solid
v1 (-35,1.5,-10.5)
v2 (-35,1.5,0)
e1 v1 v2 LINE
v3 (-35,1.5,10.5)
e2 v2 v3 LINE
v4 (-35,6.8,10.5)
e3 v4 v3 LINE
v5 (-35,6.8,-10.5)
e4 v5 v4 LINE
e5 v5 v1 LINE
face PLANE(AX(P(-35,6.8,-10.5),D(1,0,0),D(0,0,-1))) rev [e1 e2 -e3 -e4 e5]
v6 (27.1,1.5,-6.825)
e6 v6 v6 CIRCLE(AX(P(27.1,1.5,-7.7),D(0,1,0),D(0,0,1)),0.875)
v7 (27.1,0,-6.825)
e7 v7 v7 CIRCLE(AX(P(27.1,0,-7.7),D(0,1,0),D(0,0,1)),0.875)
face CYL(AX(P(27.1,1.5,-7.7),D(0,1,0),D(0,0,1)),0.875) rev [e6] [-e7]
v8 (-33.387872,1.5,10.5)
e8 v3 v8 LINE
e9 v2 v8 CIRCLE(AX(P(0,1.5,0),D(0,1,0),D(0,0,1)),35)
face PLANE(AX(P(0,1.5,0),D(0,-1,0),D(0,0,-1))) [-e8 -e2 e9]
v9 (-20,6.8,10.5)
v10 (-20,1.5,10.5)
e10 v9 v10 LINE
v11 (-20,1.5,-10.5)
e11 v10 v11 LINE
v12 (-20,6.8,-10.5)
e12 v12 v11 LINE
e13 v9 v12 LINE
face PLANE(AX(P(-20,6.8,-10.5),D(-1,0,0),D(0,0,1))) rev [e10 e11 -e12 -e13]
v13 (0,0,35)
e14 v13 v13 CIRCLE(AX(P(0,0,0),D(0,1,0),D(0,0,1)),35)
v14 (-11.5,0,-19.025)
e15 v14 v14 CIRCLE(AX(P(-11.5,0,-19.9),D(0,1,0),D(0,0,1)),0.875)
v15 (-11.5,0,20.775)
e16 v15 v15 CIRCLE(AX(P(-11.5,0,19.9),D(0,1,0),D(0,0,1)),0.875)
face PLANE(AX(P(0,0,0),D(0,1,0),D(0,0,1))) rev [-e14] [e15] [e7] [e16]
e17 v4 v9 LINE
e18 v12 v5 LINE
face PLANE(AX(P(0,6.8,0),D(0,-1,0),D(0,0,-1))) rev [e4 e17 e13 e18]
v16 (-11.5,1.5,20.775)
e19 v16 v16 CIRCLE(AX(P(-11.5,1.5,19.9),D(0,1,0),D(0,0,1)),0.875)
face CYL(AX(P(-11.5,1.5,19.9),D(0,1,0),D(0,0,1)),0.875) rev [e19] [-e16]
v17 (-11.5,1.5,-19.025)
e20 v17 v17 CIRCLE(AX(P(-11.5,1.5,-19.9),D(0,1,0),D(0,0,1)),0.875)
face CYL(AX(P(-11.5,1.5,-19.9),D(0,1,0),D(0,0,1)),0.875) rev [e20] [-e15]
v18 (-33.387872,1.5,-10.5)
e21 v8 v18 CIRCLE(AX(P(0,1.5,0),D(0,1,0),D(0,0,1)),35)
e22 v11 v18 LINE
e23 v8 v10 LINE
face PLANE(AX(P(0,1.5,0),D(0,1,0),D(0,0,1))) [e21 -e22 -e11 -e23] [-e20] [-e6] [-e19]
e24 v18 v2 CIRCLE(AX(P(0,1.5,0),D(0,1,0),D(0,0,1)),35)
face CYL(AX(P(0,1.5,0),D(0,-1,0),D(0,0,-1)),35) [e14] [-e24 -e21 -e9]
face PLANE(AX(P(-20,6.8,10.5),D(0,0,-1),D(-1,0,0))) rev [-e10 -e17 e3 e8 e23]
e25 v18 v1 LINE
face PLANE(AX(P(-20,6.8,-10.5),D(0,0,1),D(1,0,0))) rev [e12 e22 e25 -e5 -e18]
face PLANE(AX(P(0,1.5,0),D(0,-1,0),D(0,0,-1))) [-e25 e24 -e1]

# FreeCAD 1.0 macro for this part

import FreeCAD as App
import Part
import Sketcher

V = App.Vector
Q = App.Units.Quantity


def add_polygon(sketch, points):
    """Adds a closed chain of lines whose ends are joined by coincident constraints."""
    first, n = sketch.GeometryCount, len(points)
    for a, b in zip(points, points[1:] + points[:1]):
        sketch.addGeometry(Part.LineSegment(App.Vector(*a, 0), App.Vector(*b, 0)), False)
    for i in range(n):
        sketch.addConstraint(Sketcher.Constraint("Coincident", first + i, 2, first + (i + 1) % n, 1))

doc = App.newDocument("Part")
body = doc.addObject("PartDesign::Body", "Body")

# Sketch on XZ plane
sketch1 = doc.addObject("Sketcher::SketchObject", "Sketch")
body.addObject(sketch1)
sketch1.AttachmentSupport = (doc.XZ_Plane, [""])
sketch1.MapMode = "FlatFace"
sketch1.addGeometry(Part.Circle(V(0, 0, 0), V(0, 0, 1), 35), False)
sketch1.addConstraint([
    Sketcher.Constraint("Coincident", 0, 3, -1, 1),
    Sketcher.Constraint("Diameter", 0, Q("70 mm")),
])
pad1 = doc.addObject("PartDesign::Pad", "Pad")
body.addObject(pad1)
pad1.Profile = sketch1
pad1.Length = 1.5
pad1.Reversed = True

# Sketch on XZ plane
sketch2 = doc.addObject("Sketcher::SketchObject", "Sketch001")
body.addObject(sketch2)
sketch2.AttachmentSupport = (doc.XZ_Plane, [""])
sketch2.MapMode = "FlatFace"
sketch2.AttachmentOffset = App.Placement(V(0, 0, -1.5), App.Rotation())
add_polygon(sketch2, [(-35, -10.5), (-35, 10.5), (-20, 10.5), (-20, -10.5)])  # lines 0-3
sketch2.addConstraint([
    Sketcher.Constraint("Vertical", 0),
    Sketcher.Constraint("Horizontal", 1),
    Sketcher.Constraint("Vertical", 2),
    Sketcher.Constraint("Horizontal", 3),
    Sketcher.Constraint("DistanceX", 1, 1, 1, 2, Q("15 mm")),
    Sketcher.Constraint("DistanceY", 0, 1, 0, 2, Q("21 mm")),
    Sketcher.Constraint("DistanceX", 0, 2, -1, 1, Q("35 mm")),
    Sketcher.Constraint("DistanceY", -1, 1, 0, 2, Q("10.5 mm")),
])
pad2 = doc.addObject("PartDesign::Pad", "Pad001")
body.addObject(pad2)
pad2.Profile = sketch2
pad2.Length = 5.3
pad2.Reversed = True

# Sketch on XZ plane
sketch3 = doc.addObject("Sketcher::SketchObject", "Sketch002")
body.addObject(sketch3)
sketch3.AttachmentSupport = (doc.XZ_Plane, [""])
sketch3.MapMode = "FlatFace"
sketch3.AttachmentOffset = App.Placement(V(0, 0, -1.5), App.Rotation())
sketch3.addGeometry([
    Part.Circle(V(-11.5, -19.9, 0), V(0, 0, 1), 0.875),
    Part.Circle(V(27.1, -7.7, 0), V(0, 0, 1), 0.875),
    Part.Circle(V(-11.5, 19.9, 0), V(0, 0, 1), 0.875),
], False)
sketch3.addConstraint([
    Sketcher.Constraint("Equal", 0, 1),
    Sketcher.Constraint("Equal", 1, 2),
    Sketcher.Constraint("Symmetric", 0, 3, 2, 3, -1),
    Sketcher.Constraint("Diameter", 0, Q("1.75 mm")),
    Sketcher.Constraint("DistanceX", 0, 3, -1, 1, Q("11.5 mm")),
    Sketcher.Constraint("DistanceY", 0, 3, -1, 1, Q("19.9 mm")),
    Sketcher.Constraint("DistanceX", -1, 1, 1, 3, Q("27.1 mm")),
    Sketcher.Constraint("DistanceY", 1, 3, -1, 1, Q("7.7 mm")),
])
doc.recompute()
hole = doc.addObject("PartDesign::Hole", "Hole")
body.addObject(hole)
hole.Profile = sketch3
hole.ThreadType = "None"
hole.Diameter = 1.75
hole.DepthType = "ThroughAll"
hole.Reversed = True

doc.recompute()
